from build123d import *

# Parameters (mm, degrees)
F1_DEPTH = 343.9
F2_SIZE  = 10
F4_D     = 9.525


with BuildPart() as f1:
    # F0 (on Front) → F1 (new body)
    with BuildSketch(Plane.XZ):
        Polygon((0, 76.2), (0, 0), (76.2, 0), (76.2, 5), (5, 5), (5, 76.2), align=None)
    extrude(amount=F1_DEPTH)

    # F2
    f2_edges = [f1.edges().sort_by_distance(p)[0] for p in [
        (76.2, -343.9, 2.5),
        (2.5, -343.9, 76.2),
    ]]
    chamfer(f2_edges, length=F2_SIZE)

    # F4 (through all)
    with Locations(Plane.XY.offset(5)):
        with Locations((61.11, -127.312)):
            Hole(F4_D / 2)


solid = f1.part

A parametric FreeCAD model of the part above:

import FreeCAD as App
import Part
import Sketcher

V = App.Vector
Q = App.Units.Quantity


def edges_at(feature, points):
    """Names of the edges that pass closest to the given points."""
    edges = feature.Shape.Edges
    near = lambda p: min(range(len(edges)), key=lambda i: edges[i].distToShape(Part.Vertex(*p))[0])
    return sorted({f"Edge{near(p) + 1}" for p in points})


def add_polygon(sketch, points):
    """Adds a closed chain of lines whose ends are joined by coincident constraints."""
    first, n = sketch.GeometryCount, len(points)
    for a, b in zip(points, points[1:] + points[:1]):
        sketch.addGeometry(Part.LineSegment(App.Vector(*a, 0), App.Vector(*b, 0)), False)
    for i in range(n):
        sketch.addConstraint(Sketcher.Constraint("Coincident", first + i, 2, first + (i + 1) % n, 1))

doc = App.newDocument("Part")
body = doc.addObject("PartDesign::Body", "Body")

# Sketch on XZ plane
sketch1 = doc.addObject("Sketcher::SketchObject", "Sketch")
body.addObject(sketch1)
sketch1.AttachmentSupport = (doc.XZ_Plane, [""])
sketch1.MapMode = "FlatFace"
add_polygon(sketch1, [(0, 76), (0, 0), (76, 0), (76, 5), (5, 5), (5, 76)])  # lines 0-5
sketch1.addConstraint([
    Sketcher.Constraint("Vertical", 0),
    Sketcher.Constraint("Horizontal", 1),
    Sketcher.Constraint("Vertical", 2),
    Sketcher.Constraint("Horizontal", 3),
    Sketcher.Constraint("Vertical", 4),
    Sketcher.Constraint("Horizontal", 5),
    Sketcher.Constraint("Coincident", 0, 2, -1, 1),
    Sketcher.Constraint("Equal", 1, 0),
    Sketcher.Constraint("Equal", 5, 2),
    Sketcher.Constraint("DistanceX", 5, 2, 5, 1, Q("5 mm")),
    Sketcher.Constraint("DistanceX", 1, 1, 1, 2, Q("76.2 mm")),
])
pad1 = doc.addObject("PartDesign::Pad", "Pad")
body.addObject(pad1)
pad1.Profile = sketch1
pad1.Length = 343.9
doc.recompute()

chamfer = doc.addObject("PartDesign::Chamfer", "Chamfer")
body.addObject(chamfer)
chamfer.Base = (pad1, edges_at(pad1, [(76.2, -343.9, 2.5), (2.5, -343.9, 76.2)]))
chamfer.Size = 10

# Sketch on XY plane
sketch2 = doc.addObject("Sketcher::SketchObject", "Sketch001")
body.addObject(sketch2)
sketch2.AttachmentSupport = (doc.XY_Plane, [""])
sketch2.MapMode = "FlatFace"
sketch2.AttachmentOffset = App.Placement(V(0, 0, 5), App.Rotation())
sketch2.addGeometry(Part.Circle(V(61.1, -127.3, 0), V(0, 0, 1), 4.8), False)
sketch2.addConstraint([
    Sketcher.Constraint("Diameter", 0, Q("9.525 mm")),
    Sketcher.Constraint("DistanceX", -1, 1, 0, 3, Q("61.11 mm")),
    Sketcher.Constraint("DistanceY", 0, 3, -1, 1, Q("127.312 mm")),
])
doc.recompute()
hole = doc.addObject("PartDesign::Hole", "Hole")
body.addObject(hole)
hole.Profile = sketch2
hole.ThreadType = "None"
hole.Diameter = 9.525
hole.DepthType = "ThroughAll"

doc.recompute()
